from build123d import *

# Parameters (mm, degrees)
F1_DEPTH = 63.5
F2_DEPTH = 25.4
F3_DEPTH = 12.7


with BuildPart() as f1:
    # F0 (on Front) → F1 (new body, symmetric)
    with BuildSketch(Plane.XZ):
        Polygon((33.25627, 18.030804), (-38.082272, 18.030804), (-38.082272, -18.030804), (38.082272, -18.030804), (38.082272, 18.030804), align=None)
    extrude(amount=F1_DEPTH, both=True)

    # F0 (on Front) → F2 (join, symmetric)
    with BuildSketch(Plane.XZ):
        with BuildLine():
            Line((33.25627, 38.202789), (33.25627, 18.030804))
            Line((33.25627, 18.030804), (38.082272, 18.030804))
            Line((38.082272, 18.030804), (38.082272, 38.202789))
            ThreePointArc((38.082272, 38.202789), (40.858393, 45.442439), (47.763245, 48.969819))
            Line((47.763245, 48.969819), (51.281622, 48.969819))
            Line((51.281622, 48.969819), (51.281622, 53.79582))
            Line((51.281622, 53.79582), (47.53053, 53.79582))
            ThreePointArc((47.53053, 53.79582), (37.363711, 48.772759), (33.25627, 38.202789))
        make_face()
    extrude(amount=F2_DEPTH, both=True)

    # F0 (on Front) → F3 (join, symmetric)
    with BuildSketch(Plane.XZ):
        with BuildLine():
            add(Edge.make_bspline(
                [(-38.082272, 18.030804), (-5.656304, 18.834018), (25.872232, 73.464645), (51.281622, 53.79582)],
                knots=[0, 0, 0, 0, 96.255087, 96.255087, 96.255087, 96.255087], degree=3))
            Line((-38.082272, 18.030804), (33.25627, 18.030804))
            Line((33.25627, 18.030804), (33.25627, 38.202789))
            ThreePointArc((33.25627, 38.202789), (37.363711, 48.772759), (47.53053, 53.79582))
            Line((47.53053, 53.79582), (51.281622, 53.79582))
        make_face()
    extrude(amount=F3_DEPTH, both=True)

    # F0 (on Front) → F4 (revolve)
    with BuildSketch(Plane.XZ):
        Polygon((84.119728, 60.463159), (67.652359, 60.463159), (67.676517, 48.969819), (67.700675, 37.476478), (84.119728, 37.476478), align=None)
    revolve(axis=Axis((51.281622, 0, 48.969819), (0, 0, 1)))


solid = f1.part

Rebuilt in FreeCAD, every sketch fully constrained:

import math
import FreeCAD as App
import Part
import Sketcher
Q = App.Units.Quantity


def add_polygon(sketch, points):
    """Adds a closed chain of lines whose ends are joined by coincident constraints."""
    first, n = sketch.GeometryCount, len(points)
    for a, b in zip(points, points[1:] + points[:1]):
        sketch.addGeometry(Part.LineSegment(App.Vector(*a, 0), App.Vector(*b, 0)), False)
    for i in range(n):
        sketch.addConstraint(Sketcher.Constraint("Coincident", first + i, 2, first + (i + 1) % n, 1))

doc = App.newDocument("Part")
params = doc.addObject("Spreadsheet::Sheet", "Params")
for row, (alias, value) in enumerate([
    ("pad1_length", "5 in"),
    ("sketch2_width", "0.1900001 in"),
    ("pad2_length", "2 in"),
    ("pad3_length", "1 in"),
    ("revolution_angle", "360 deg"),
], start=1):
    params.set(f"A{row}", alias)
    params.set(f"B{row}", "=" + value)
    params.setAlias(f"B{row}", alias)

body = doc.addObject("PartDesign::Body", "Body")

# Sketch on XZ plane
sketch1 = body.newObject("Sketcher::SketchObject", "Sketch")
sketch1.AttachmentSupport = (doc.getObject("XZ_Plane"), [""])
sketch1.MapMode = "FlatFace"
add_polygon(sketch1, [(-38.082272, 18.030804), (-38.082272, -18.030804), (38.082272, -18.030804), (38.082272, 18.030804)])  # lines 0-3
sketch1.addConstraint(Sketcher.Constraint("Vertical", 0))
sketch1.addConstraint(Sketcher.Constraint("Horizontal", 1))
sketch1.addConstraint(Sketcher.Constraint("Vertical", 2))
sketch1.addConstraint(Sketcher.Constraint("Horizontal", 3))
sketch1.addConstraint(Sketcher.Constraint("Symmetric", 0, 2, 2, 2, -1, 1))
sketch1.addConstraint(Sketcher.Constraint("DistanceX", 1, 1, 1, 2, 76.164544))
sketch1.addConstraint(Sketcher.Constraint("DistanceY", 0, 2, 0, 1, 36.061608))
pad1 = body.newObject("PartDesign::Pad", "Pad")
pad1.Profile = sketch1
pad1.setExpression("Length", "Params.pad1_length")
pad1.Midplane = True

# Sketch on XZ plane
sketch2 = body.newObject("Sketcher::SketchObject", "Sketch001")
sketch2.AttachmentSupport = (doc.getObject("XZ_Plane"), [""])
sketch2.MapMode = "FlatFace"
sketch2.addGeometry(Part.LineSegment(App.Vector(33.25627, 38.202789, 0), App.Vector(33.25627, 18.030804, 0)), False)
sketch2.addGeometry(Part.LineSegment(App.Vector(33.25627, 18.030804, 0), App.Vector(38.082272, 18.030804, 0)), False)
sketch2.addGeometry(Part.LineSegment(App.Vector(38.082272, 18.030804, 0), App.Vector(38.082272, 38.202789, 0)), False)
sketch2.addGeometry(Part.ArcOfCircle(Part.Circle(App.Vector(48.910224, 38.202787, 0), App.Vector(0, 0, 1), 10.827952), math.radians(96.080611), math.radians(179.99999)), False)
sketch2.addGeometry(Part.LineSegment(App.Vector(47.763245, 48.969819, 0), App.Vector(51.281622, 48.969819, 0)), False)
sketch2.addGeometry(Part.LineSegment(App.Vector(51.281622, 48.969819, 0), App.Vector(51.281622, 53.79582, 0)), False)
sketch2.addGeometry(Part.LineSegment(App.Vector(51.281622, 53.79582, 0), App.Vector(47.53053, 53.79582, 0)), False)
sketch2.addGeometry(Part.ArcOfCircle(Part.Circle(App.Vector(48.910222, 38.202788, 0), App.Vector(0, 0, 1), 15.653952), math.radians(95.056437), math.radians(179.999995)), False)
sketch2.addConstraint(Sketcher.Constraint("Coincident", 0, 2, 1, 1))
sketch2.addConstraint(Sketcher.Constraint("Coincident", 1, 2, 2, 1))
sketch2.addConstraint(Sketcher.Constraint("Tangent", 2, 2, 3, 2))
sketch2.addConstraint(Sketcher.Constraint("Coincident", 3, 1, 4, 1))
sketch2.addConstraint(Sketcher.Constraint("Coincident", 4, 2, 5, 1))
sketch2.addConstraint(Sketcher.Constraint("Coincident", 5, 2, 6, 1))
sketch2.addConstraint(Sketcher.Constraint("Coincident", 6, 2, 7, 1))
sketch2.addConstraint(Sketcher.Constraint("Tangent", 7, 2, 0, 1))
sketch2.addConstraint(Sketcher.Constraint("Vertical", 0))
sketch2.addConstraint(Sketcher.Constraint("Horizontal", 1))
sketch2.addConstraint(Sketcher.Constraint("Vertical", 2))
sketch2.addConstraint(Sketcher.Constraint("Horizontal", 4))
sketch2.addConstraint(Sketcher.Constraint("Vertical", 5))
sketch2.addConstraint(Sketcher.Constraint("Horizontal", 6))
sketch2.addConstraint(Sketcher.Constraint("Coincident", 7, 3, 3, 3))
sketch2.addConstraint(Sketcher.Constraint("Equal", 1, 5))
sketch2.addConstraint(Sketcher.Constraint("DistanceX", 1, 1, 1, 2, Q("0.1900001 in")))
sketch2.addConstraint(Sketcher.Constraint("Radius", 3, 10.827952))
sketch2.addConstraint(Sketcher.Constraint("DistanceX", 6, 2, 6, 1, 3.751092))
sketch2.addConstraint(Sketcher.Constraint("DistanceX", 7, 3, 4, 2, 2.3714))
sketch2.addConstraint(Sketcher.Constraint("DistanceY", 0, 2, 0, 1, 20.171985))
sketch2.addConstraint(Sketcher.Constraint("DistanceX", -1, 1, 7, 3, 48.910222))
sketch2.addConstraint(Sketcher.Constraint("DistanceY", -1, 1, 2, 2, 38.202789))
sketch2.setExpression("Constraints[16]", "Params.sketch2_width")
pad2 = body.newObject("PartDesign::Pad", "Pad001")
pad2.Profile = sketch2
pad2.setExpression("Length", "Params.pad2_length")
pad2.Midplane = True

# Sketch on XZ plane
sketch3 = body.newObject("Sketcher::SketchObject", "Sketch002")
sketch3.AttachmentSupport = (doc.getObject("XZ_Plane"), [""])
sketch3.MapMode = "FlatFace"
sketch3.addGeometry(Part.BSplineCurve([App.Vector(-38.082272, 18.030804, 0), App.Vector(-5.656304, 18.834018, 0), App.Vector(25.872232, 73.464645, 0), App.Vector(51.281622, 53.79582, 0)], [4, 4], [0, 96.255087], False, 3, [1, 1, 1, 1], False), False)
sketch3.addGeometry(Part.LineSegment(App.Vector(-38.082272, 18.030804, 0), App.Vector(33.25627, 18.030804, 0)), False)
sketch3.addGeometry(Part.LineSegment(App.Vector(33.25627, 18.030804, 0), App.Vector(33.25627, 38.202789, 0)), False)
sketch3.addGeometry(Part.ArcOfCircle(Part.Circle(App.Vector(48.910222, 38.202788, 0), App.Vector(0, 0, 1), 15.653952), math.radians(95.056437), math.radians(179.999995)), False)
sketch3.addGeometry(Part.LineSegment(App.Vector(47.53053, 53.79582, 0), App.Vector(51.281622, 53.79582, 0)), False)
sketch3.addConstraint(Sketcher.Constraint("Block", 0))
sketch3.addConstraint(Sketcher.Constraint("Coincident", 0, 1, 1, 1))
sketch3.addConstraint(Sketcher.Constraint("Coincident", 1, 2, 2, 1))
sketch3.addConstraint(Sketcher.Constraint("Tangent", 2, 2, 3, 2))
sketch3.addConstraint(Sketcher.Constraint("Coincident", 3, 1, 4, 1))
sketch3.addConstraint(Sketcher.Constraint("Coincident", 4, 2, 0, 2))
sketch3.addConstraint(Sketcher.Constraint("Horizontal", 1))
sketch3.addConstraint(Sketcher.Constraint("Vertical", 2))
sketch3.addConstraint(Sketcher.Constraint("Horizontal", 4))
sketch3.addConstraint(Sketcher.Constraint("Radius", 3, 15.653952))
sketch3.addConstraint(Sketcher.Constraint("DistanceX", 4, 1, 4, 2, 3.751092))
sketch3.addConstraint(Sketcher.Constraint("DistanceX", 3, 3, 4, 2, 2.3714))
pad3 = body.newObject("PartDesign::Pad", "Pad002")
pad3.Profile = sketch3
pad3.setExpression("Length", "Params.pad3_length")
pad3.Midplane = True

# Sketch on XZ plane
sketch4 = body.newObject("Sketcher::SketchObject", "Sketch003")
sketch4.AttachmentSupport = (doc.getObject("XZ_Plane"), [""])
sketch4.MapMode = "FlatFace"
add_polygon(sketch4, [(84.119728, 60.463159), (67.652359, 60.463159), (67.676517, 48.969819), (67.700675, 37.476478), (84.119728, 37.476478)])  # lines 0-4
sketch4.addGeometry(Part.LineSegment(App.Vector(51.281622, 37.476478, 0), App.Vector(51.281622, 60.463159, 0)), True)  # axis
sketch4.addConstraint(Sketcher.Constraint("Horizontal", 0))
sketch4.addConstraint(Sketcher.Constraint("Horizontal", 3))
sketch4.addConstraint(Sketcher.Constraint("Vertical", 4))
sketch4.addConstraint(Sketcher.Constraint("Vertical", 5))
sketch4.addConstraint(Sketcher.Constraint("Parallel", 1, 2))
sketch4.addConstraint(Sketcher.Constraint("Horizontal", 3, 2, 5, 1))
sketch4.addConstraint(Sketcher.Constraint("Horizontal", 4, 2, 5, 2))
sketch4.addConstraint(Sketcher.Constraint("Equal", 1, 2))
sketch4.addConstraint(Sketcher.Constraint("DistanceX", 0, 2, 0, 1, 16.467369))
sketch4.addConstraint(Sketcher.Constraint("DistanceY", 4, 1, 4, 2, 22.986681))
sketch4.addConstraint(Sketcher.Constraint("DistanceX", 3, 1, 3, 2, 16.419053))
sketch4.addConstraint(Sketcher.Constraint("DistanceX", -1, 1, 0, 2, 67.652359))
sketch4.addConstraint(Sketcher.Constraint("DistanceY", -1, 1, 0, 2, 60.463159))
sketch4.addConstraint(Sketcher.Constraint("DistanceX", -1, 1, 5, 1, 51.281622))
revolution = body.newObject("PartDesign::Revolution", "Revolution")
revolution.Profile = sketch4
revolution.ReferenceAxis = (sketch4, ["Axis0"])
revolution.setExpression("Angle", "Params.revolution_angle")

doc.recompute()
